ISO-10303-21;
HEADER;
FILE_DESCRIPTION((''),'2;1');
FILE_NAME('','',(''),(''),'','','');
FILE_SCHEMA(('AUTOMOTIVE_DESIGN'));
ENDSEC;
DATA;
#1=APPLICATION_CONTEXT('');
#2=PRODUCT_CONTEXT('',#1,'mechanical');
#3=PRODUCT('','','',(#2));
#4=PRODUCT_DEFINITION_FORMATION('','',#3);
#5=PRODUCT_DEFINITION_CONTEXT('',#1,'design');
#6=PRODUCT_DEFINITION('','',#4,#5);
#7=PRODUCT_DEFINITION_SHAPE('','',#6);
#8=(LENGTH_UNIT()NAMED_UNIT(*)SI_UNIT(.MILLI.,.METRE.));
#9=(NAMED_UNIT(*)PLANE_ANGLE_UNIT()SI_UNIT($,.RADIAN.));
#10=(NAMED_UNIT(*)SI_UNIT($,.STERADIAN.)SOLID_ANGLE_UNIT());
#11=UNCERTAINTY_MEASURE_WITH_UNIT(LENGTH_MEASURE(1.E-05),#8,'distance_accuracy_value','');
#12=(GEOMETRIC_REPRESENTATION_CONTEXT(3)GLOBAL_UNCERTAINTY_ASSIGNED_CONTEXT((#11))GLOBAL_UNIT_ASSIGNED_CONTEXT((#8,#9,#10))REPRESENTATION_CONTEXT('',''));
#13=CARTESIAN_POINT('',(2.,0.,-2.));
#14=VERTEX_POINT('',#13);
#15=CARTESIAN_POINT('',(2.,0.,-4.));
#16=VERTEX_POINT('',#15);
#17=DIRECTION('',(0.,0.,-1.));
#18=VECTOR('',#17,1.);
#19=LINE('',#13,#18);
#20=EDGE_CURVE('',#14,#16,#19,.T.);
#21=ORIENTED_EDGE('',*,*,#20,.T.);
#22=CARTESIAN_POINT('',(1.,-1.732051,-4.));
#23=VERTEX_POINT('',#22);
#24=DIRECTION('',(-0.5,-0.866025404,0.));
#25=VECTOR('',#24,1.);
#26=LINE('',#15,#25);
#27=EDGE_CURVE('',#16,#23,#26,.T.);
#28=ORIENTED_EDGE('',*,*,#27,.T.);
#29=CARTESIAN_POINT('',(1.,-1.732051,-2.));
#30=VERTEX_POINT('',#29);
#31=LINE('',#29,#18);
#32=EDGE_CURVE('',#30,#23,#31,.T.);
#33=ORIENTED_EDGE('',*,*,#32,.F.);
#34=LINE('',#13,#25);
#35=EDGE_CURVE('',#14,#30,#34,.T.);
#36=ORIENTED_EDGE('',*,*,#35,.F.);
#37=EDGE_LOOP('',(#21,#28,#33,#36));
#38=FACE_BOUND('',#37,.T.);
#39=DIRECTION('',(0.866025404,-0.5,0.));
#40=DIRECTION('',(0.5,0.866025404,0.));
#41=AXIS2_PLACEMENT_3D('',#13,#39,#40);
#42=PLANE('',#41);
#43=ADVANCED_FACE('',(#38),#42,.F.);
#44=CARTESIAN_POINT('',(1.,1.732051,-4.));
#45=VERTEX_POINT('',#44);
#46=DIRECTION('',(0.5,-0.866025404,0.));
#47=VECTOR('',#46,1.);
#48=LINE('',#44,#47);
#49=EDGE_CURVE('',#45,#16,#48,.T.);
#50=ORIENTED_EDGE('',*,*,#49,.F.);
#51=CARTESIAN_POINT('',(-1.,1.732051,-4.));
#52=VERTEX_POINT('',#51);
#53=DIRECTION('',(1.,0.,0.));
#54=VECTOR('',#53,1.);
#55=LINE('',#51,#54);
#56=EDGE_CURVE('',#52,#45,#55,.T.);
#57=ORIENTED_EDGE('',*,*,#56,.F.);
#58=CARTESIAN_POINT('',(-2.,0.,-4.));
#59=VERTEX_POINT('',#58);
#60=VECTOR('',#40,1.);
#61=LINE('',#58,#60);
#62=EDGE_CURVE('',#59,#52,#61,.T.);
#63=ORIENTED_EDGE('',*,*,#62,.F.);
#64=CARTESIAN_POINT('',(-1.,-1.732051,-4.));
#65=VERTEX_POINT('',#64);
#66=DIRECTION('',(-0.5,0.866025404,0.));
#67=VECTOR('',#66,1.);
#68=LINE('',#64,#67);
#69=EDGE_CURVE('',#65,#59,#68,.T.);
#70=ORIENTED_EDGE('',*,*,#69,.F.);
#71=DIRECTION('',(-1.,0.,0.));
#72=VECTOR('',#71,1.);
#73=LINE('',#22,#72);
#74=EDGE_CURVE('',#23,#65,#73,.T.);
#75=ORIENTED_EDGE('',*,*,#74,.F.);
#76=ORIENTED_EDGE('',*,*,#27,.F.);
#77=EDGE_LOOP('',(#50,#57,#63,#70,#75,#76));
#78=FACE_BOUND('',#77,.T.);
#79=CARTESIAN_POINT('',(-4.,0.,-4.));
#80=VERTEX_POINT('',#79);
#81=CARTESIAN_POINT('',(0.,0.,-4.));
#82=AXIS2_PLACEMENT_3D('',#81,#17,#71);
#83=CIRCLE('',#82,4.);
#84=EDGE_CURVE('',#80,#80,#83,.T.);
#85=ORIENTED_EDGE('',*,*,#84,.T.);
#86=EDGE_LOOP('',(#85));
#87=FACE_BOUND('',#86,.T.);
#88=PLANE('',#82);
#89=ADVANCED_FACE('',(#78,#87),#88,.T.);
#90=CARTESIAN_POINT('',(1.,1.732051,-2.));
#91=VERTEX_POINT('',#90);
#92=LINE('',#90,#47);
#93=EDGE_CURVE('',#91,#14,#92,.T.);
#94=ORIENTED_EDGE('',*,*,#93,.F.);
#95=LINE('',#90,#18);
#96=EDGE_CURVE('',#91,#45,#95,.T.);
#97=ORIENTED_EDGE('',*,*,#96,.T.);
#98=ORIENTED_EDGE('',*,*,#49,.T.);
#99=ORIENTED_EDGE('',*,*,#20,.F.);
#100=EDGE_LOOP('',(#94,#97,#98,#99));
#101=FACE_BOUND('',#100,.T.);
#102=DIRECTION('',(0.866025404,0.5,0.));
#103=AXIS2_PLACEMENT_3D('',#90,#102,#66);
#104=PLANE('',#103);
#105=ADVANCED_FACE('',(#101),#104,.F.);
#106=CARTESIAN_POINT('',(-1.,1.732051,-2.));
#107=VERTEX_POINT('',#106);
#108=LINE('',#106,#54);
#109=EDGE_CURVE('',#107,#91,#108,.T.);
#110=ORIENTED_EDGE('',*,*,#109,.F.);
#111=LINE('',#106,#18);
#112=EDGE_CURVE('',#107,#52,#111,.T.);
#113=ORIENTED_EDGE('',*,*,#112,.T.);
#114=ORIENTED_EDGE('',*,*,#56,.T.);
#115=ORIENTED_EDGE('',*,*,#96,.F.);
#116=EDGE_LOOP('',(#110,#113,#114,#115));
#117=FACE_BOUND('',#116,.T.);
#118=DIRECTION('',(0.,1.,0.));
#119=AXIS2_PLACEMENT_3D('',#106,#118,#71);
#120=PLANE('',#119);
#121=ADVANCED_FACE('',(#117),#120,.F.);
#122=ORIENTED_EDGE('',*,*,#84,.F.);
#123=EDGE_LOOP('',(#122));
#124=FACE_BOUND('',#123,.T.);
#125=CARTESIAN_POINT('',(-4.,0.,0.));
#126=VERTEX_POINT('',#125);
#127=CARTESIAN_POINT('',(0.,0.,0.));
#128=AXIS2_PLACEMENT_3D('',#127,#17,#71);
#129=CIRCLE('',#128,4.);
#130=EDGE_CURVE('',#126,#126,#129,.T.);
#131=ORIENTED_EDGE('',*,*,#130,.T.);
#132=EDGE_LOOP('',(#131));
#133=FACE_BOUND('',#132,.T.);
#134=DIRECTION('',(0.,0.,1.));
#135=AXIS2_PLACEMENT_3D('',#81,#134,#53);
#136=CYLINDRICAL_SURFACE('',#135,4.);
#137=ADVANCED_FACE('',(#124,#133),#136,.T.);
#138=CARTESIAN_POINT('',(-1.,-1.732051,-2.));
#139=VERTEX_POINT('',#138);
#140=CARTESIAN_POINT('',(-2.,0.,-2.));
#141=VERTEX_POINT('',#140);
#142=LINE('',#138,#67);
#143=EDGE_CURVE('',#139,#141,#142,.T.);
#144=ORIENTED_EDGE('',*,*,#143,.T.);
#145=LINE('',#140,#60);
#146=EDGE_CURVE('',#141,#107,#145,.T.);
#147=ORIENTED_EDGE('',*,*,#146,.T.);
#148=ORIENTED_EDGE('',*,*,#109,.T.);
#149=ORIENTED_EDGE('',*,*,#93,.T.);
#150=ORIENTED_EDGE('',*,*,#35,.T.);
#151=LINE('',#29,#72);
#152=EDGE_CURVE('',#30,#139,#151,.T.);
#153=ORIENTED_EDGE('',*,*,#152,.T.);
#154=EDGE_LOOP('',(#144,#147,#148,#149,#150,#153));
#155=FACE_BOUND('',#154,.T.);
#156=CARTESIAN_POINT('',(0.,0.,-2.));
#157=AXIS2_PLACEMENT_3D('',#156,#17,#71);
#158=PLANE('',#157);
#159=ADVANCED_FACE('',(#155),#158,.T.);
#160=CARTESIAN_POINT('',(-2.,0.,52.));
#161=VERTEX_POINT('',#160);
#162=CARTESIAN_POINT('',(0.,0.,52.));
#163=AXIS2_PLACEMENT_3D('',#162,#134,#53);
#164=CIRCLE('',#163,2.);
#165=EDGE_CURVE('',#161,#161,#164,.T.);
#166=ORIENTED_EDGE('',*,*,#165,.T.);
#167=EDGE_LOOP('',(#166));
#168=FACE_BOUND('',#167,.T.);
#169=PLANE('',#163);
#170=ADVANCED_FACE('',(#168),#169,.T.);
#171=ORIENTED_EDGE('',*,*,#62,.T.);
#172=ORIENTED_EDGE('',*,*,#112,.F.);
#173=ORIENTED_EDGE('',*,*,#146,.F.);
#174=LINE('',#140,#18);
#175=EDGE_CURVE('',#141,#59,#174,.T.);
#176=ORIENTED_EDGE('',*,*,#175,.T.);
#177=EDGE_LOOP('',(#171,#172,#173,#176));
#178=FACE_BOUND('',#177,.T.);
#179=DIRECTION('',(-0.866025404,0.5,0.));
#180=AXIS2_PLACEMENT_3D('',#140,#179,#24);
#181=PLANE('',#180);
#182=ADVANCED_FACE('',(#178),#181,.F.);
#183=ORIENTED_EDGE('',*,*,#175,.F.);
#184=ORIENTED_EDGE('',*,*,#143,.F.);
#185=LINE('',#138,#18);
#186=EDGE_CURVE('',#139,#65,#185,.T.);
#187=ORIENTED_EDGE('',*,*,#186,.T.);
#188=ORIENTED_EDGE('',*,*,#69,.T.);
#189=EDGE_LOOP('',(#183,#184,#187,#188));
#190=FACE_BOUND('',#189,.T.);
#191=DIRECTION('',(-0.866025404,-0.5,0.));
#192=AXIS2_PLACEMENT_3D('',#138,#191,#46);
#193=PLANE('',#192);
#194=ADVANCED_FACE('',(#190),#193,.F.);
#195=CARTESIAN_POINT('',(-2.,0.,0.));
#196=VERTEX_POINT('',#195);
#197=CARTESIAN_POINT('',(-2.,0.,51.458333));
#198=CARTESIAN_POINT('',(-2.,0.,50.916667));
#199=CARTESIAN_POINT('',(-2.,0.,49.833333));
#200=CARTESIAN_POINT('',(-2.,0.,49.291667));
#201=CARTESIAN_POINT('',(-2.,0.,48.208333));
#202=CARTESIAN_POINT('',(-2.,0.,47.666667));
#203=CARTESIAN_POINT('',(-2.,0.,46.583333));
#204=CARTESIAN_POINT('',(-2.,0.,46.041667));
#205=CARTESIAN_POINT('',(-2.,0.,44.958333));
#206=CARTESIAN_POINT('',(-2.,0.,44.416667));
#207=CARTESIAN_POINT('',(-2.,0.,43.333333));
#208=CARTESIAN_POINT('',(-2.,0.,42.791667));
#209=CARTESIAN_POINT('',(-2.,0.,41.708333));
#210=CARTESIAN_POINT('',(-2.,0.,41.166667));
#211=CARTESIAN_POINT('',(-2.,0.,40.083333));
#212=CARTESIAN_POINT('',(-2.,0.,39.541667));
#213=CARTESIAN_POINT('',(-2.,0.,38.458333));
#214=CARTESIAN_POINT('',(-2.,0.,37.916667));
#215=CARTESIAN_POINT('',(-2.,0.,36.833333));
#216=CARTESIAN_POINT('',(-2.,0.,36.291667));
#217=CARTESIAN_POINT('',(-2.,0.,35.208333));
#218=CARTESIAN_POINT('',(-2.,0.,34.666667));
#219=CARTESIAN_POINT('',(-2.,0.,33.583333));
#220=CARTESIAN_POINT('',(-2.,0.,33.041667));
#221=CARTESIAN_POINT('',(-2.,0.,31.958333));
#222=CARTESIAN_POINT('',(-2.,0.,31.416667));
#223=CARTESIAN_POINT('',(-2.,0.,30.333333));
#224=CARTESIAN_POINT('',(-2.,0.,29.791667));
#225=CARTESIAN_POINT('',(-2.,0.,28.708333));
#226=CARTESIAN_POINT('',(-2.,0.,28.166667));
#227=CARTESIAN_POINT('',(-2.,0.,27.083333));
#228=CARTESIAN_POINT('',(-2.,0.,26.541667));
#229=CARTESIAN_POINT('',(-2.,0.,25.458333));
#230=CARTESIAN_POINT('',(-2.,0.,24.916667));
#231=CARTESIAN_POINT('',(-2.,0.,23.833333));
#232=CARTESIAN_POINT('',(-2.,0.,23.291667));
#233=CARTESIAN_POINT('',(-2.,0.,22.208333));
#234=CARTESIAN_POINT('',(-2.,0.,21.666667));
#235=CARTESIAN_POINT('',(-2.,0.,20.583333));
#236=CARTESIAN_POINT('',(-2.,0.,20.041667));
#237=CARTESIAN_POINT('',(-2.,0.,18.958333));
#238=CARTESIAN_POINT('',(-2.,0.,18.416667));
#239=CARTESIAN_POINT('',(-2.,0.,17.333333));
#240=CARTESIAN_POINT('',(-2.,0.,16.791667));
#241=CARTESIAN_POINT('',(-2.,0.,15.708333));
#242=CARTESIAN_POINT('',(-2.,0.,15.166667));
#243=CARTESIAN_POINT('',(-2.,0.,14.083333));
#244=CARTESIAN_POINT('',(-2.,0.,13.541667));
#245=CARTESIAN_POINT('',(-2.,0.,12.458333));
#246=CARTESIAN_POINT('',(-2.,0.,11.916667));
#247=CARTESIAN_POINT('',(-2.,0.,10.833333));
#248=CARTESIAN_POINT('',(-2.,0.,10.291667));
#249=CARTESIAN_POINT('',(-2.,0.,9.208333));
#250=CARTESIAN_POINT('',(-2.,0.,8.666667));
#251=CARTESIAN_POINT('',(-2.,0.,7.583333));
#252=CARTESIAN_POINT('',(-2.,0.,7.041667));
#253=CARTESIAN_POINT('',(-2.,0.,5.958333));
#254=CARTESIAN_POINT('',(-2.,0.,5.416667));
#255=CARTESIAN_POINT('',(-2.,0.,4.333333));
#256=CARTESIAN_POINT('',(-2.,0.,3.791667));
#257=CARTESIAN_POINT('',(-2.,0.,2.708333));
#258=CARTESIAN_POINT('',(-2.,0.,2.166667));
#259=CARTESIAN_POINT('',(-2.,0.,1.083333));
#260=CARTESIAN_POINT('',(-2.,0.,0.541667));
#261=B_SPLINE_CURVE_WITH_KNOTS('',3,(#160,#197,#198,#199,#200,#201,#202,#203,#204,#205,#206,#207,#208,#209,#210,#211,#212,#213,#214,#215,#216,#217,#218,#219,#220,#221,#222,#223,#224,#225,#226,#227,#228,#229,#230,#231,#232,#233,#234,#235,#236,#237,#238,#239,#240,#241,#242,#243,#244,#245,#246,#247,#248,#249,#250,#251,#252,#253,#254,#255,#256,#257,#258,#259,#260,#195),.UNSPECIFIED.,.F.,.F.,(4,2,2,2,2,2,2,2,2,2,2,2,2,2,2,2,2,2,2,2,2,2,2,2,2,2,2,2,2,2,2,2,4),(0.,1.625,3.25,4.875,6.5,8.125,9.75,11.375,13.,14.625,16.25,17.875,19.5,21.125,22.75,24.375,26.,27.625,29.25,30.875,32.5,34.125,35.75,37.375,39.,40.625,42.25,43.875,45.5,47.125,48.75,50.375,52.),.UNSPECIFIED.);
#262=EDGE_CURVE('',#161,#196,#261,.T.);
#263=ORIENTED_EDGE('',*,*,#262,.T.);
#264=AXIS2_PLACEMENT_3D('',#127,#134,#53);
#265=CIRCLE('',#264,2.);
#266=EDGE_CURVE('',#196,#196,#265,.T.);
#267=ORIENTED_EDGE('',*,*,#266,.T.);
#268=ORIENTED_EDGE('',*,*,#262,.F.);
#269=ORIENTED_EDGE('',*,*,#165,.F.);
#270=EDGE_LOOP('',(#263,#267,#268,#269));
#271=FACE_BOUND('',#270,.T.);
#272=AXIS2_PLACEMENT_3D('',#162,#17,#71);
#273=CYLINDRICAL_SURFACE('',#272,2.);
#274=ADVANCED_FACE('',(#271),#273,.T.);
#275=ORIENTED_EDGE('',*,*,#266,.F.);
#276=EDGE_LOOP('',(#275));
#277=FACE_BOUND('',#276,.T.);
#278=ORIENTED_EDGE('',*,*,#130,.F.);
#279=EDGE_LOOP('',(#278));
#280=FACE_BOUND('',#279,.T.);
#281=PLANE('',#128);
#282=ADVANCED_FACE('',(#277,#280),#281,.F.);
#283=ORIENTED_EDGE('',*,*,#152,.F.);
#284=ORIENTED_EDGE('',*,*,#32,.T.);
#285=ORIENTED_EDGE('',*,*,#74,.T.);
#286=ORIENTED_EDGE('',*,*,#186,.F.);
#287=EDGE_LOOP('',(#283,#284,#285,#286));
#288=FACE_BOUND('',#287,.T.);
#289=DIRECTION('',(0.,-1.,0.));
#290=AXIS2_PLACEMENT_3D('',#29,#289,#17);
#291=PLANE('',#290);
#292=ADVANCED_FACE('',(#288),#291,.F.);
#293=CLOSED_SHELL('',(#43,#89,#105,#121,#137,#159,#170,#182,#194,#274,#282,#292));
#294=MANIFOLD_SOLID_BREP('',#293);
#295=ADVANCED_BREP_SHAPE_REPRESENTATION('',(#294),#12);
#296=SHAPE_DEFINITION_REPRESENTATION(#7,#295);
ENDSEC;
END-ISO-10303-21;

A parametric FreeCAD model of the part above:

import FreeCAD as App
import Part
import Sketcher

V = App.Vector
Q = App.Units.Quantity


def add_polygon(sketch, points):
    """Adds a closed chain of lines whose ends are joined by coincident constraints."""
    first, n = sketch.GeometryCount, len(points)
    for a, b in zip(points, points[1:] + points[:1]):
        sketch.addGeometry(Part.LineSegment(App.Vector(*a, 0), App.Vector(*b, 0)), False)
    for i in range(n):
        sketch.addConstraint(Sketcher.Constraint("Coincident", first + i, 2, first + (i + 1) % n, 1))

doc = App.newDocument("Part")
body = doc.addObject("PartDesign::Body", "Body")

# Sketch on XY plane
sketch1 = body.newObject("Sketcher::SketchObject", "Sketch")
sketch1.AttachmentSupport = (doc.getObject("XY_Plane"), [""])
sketch1.MapMode = "FlatFace"
sketch1.addGeometry(Part.Circle(V(0, 0, 0), V(0, 0, 1), 2), False)
sketch1.addConstraint([
    Sketcher.Constraint("Coincident", 0, 3, -1, 1),
    Sketcher.Constraint("Diameter", 0, Q("4 mm")),
])
pad1 = body.newObject("PartDesign::Pad", "Pad")
pad1.Profile = sketch1
pad1.Length = 52

# Sketch on XY plane
sketch2 = body.newObject("Sketcher::SketchObject", "Sketch001")
sketch2.AttachmentSupport = (doc.getObject("XY_Plane"), [""])
sketch2.MapMode = "FlatFace"
sketch2.addGeometry(Part.Circle(V(0, 0, 0), V(0, 0, 1), 4), False)
sketch2.addConstraint([
    Sketcher.Constraint("Coincident", 0, 3, -1, 1),
    Sketcher.Constraint("Diameter", 0, Q("8 mm")),
])
pad2 = body.newObject("PartDesign::Pad", "Pad001")
pad2.Profile = sketch2
pad2.Length = 4
pad2.Reversed = True

# Sketch on XY plane
sketch3 = body.newObject("Sketcher::SketchObject", "Sketch002")
sketch3.AttachmentSupport = (doc.getObject("XY_Plane"), [""])
sketch3.MapMode = "FlatFace"
sketch3.AttachmentOffset = App.Placement(V(0, 0, -4), App.Rotation())
add_polygon(sketch3, [(-2, 0), (-1, 1.7), (1, 1.7), (2, 0), (1, -1.7), (-1, -1.7)])  # lines 0-5
sketch3.addConstraint([
    Sketcher.Constraint("Horizontal", 1),
    Sketcher.Constraint("Horizontal", 4),
    Sketcher.Constraint("Symmetric", 0, 2, 3, 2, -1, 1),
    Sketcher.Constraint("Symmetric", 2, 2, 5, 2, -1, 1),
    Sketcher.Constraint("PointOnObject", 2, 2, -1),
    Sketcher.Constraint("Parallel", 2, 5),
    Sketcher.Constraint("Vertical", 1, 2, 3, 2),
    Sketcher.Constraint("DistanceX", 1, 1, 1, 2, Q("2 mm")),
    Sketcher.Constraint("Angle", 0, Q("60 deg")),
    Sketcher.Constraint("Distance", 0, Q("2 mm")),
])
pocket1 = body.newObject("PartDesign::Pocket", "Pocket")
pocket1.Profile = sketch3
pocket1.Length = 2
pocket1.Reversed = True

doc.recompute()
